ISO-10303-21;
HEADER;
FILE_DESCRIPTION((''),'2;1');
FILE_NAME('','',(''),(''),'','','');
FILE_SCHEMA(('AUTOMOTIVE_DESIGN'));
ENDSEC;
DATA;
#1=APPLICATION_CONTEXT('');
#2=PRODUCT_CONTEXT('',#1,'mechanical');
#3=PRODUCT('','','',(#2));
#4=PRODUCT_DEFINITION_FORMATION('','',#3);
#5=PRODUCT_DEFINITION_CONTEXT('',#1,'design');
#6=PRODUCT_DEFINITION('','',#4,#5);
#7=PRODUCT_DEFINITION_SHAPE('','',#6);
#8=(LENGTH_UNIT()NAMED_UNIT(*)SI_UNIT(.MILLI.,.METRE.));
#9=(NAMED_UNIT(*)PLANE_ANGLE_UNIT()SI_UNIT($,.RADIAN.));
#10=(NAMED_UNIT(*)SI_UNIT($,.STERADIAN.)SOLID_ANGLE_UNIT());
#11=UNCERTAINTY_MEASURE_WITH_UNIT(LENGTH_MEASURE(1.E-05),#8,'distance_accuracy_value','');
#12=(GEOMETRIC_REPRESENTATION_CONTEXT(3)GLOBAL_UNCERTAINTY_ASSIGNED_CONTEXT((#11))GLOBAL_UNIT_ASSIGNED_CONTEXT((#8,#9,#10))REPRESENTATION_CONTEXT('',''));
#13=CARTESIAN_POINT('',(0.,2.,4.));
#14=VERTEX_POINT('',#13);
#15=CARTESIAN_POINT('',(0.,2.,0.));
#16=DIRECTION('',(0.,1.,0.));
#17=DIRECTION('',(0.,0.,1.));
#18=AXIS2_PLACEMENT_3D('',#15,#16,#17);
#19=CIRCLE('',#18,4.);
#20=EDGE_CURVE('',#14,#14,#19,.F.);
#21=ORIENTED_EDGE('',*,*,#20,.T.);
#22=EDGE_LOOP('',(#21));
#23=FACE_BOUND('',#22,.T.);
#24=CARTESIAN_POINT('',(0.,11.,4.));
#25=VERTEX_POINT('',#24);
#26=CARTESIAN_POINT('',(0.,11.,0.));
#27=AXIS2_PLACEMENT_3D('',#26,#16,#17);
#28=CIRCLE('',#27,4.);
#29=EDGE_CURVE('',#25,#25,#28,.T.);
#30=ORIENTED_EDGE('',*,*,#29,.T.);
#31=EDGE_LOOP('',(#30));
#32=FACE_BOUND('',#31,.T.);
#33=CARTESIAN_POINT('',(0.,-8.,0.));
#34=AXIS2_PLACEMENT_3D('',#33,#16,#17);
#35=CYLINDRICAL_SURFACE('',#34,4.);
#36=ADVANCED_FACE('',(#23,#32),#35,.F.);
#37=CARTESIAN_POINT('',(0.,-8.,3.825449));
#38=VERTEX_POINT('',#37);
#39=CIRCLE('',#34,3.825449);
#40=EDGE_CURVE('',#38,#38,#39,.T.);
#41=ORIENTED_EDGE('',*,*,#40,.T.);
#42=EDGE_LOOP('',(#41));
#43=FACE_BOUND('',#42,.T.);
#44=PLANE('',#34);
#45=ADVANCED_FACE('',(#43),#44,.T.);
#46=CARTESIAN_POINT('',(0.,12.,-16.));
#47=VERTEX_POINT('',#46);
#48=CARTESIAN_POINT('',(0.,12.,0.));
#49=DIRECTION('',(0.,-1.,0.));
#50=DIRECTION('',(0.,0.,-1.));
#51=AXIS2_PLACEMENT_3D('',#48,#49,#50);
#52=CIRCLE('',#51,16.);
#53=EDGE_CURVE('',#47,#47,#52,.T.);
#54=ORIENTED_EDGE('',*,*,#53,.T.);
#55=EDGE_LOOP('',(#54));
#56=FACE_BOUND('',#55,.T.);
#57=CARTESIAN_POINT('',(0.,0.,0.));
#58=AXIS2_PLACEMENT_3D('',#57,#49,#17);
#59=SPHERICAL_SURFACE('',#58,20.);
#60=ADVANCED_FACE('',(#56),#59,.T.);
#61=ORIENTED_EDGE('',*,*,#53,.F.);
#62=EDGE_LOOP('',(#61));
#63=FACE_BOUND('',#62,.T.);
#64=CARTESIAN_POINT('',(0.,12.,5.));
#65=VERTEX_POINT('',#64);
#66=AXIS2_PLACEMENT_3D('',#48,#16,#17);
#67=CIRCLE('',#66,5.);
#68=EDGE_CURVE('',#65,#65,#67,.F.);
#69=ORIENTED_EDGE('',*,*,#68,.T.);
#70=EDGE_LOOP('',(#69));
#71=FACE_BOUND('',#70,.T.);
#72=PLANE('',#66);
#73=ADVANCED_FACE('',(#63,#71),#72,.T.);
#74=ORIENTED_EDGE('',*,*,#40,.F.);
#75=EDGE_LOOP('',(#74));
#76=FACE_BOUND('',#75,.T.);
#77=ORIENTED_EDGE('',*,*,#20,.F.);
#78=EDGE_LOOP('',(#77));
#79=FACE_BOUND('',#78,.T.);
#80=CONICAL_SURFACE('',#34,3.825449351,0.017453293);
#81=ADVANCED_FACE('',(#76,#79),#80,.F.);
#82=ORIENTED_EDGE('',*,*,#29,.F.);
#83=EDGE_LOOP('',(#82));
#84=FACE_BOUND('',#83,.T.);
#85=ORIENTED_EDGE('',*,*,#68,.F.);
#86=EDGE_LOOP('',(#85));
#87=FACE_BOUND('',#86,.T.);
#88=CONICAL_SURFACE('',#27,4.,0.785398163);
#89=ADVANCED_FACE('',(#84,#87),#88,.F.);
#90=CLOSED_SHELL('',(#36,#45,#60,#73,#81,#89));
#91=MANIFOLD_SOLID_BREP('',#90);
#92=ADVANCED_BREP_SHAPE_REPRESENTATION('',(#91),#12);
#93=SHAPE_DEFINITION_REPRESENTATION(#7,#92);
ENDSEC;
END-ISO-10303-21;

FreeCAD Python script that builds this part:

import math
import FreeCAD as App
import Part
import Sketcher
Q = App.Units.Quantity


def edges_at(feature, points):
    """Names of the edges that pass closest to the given points."""
    edges = feature.Shape.Edges
    near = lambda p: min(range(len(edges)), key=lambda i: edges[i].distToShape(Part.Vertex(*p))[0])
    return sorted({f"Edge{near(p) + 1}" for p in points})

doc = App.newDocument("Part")
body = doc.addObject("PartDesign::Body", "Body")

# Sketch on YZ plane
sketch1 = doc.addObject("Sketcher::SketchObject", "Sketch")
body.addObject(sketch1)
sketch1.AttachmentSupport = (doc.YZ_Plane, [""])
sketch1.MapMode = "FlatFace"
sketch1.addGeometry([
    Part.LineSegment(App.Vector(12, -16, 0), App.Vector(12, 0, 0)),
    Part.LineSegment(App.Vector(12, 0, 0), App.Vector(-20, 0, 0)),
    Part.ArcOfCircle(Part.Circle(App.Vector(0, 0, 0), App.Vector(0, 0, 1), 20), math.radians(180), math.radians(307)),
], False)
sketch1.addConstraint([
    Sketcher.Constraint("Coincident", 0, 2, 1, 1),
    Sketcher.Constraint("Coincident", 1, 2, 2, 1),
    Sketcher.Constraint("Coincident", 2, 2, 0, 1),
    Sketcher.Constraint("Vertical", 0),
    Sketcher.Constraint("Horizontal", 1),
    Sketcher.Constraint("Coincident", 2, 3, -1, 1),
    Sketcher.Constraint("PointOnObject", 0, 2, -1),
    Sketcher.Constraint("Radius", 2, Q("20 mm")),
    Sketcher.Constraint("DistanceX", 1, 2, 1, 1, Q("32 mm")),
])
revolution = doc.addObject("PartDesign::Revolution", "Revolution")
body.addObject(revolution)
revolution.Profile = sketch1
revolution.ReferenceAxis = (sketch1, ["H_Axis"])
revolution.Angle = 360

# Sketch on XZ plane
sketch2 = doc.addObject("Sketcher::SketchObject", "Sketch001")
body.addObject(sketch2)
sketch2.AttachmentSupport = (doc.XZ_Plane, [""])
sketch2.MapMode = "FlatFace"
sketch2.AttachmentOffset = App.Placement(App.Vector(0, 0, -12), App.Rotation())
sketch2.addGeometry(Part.Circle(App.Vector(0, 0, 0), App.Vector(0, 0, 1), 4), False)
sketch2.addConstraint([
    Sketcher.Constraint("Coincident", 0, 3, -1, 1),
    Sketcher.Constraint("Diameter", 0, Q("8 mm")),
])
pocket1 = doc.addObject("PartDesign::Pocket", "Pocket")
body.addObject(pocket1)
pocket1.Profile = sketch2
pocket1.Length = 20
pocket1.Reversed = True
doc.recompute()

chamfer = doc.addObject("PartDesign::Chamfer", "Chamfer")
body.addObject(chamfer)
chamfer.Base = (pocket1, edges_at(pocket1, [(-4, -8, 0)]))
chamfer.ChamferType = "Two distances"
chamfer.Size = 10
chamfer.Size2 = 0.174551
doc.recompute()

chamfer2 = doc.addObject("PartDesign::Chamfer", "Chamfer001")
body.addObject(chamfer2)
chamfer2.Base = (chamfer, edges_at(chamfer, [(-4, 12, 0)]))
chamfer2.Size = 1

doc.recompute()
